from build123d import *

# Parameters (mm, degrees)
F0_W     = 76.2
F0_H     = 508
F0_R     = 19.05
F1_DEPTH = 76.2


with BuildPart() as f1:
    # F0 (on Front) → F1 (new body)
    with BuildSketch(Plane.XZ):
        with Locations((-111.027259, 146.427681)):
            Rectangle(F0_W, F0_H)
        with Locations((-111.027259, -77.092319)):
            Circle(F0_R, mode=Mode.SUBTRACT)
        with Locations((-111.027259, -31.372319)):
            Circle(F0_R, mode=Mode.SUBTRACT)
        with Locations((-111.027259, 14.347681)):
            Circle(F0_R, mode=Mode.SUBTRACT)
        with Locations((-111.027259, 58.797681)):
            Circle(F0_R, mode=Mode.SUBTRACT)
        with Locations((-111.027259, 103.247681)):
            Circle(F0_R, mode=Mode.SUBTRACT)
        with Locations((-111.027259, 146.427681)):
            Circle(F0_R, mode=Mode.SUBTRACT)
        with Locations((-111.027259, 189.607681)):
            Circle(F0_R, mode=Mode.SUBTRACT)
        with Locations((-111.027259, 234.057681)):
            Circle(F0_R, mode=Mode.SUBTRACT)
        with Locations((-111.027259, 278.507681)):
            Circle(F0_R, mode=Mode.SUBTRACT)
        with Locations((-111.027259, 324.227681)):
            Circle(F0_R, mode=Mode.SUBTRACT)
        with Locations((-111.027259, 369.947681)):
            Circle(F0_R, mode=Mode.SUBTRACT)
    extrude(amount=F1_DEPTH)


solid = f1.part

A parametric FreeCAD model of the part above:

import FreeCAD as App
import Part
import Sketcher
from FreeCAD import Vector
Q = App.Units.Quantity

doc = App.newDocument("Part")
body = doc.addObject("PartDesign::Body", "Body")

sketch1 = doc.addObject("Sketcher::SketchObject", "Sketch")
body.addObject(sketch1)
sketch1.AttachmentSupport = (doc.XZ_Plane, [""])
sketch1.MapMode = "FlatFace"
sketch1.addGeometry(Part.LineSegment(Vector(-149, 400, 0), Vector(-149, -108, 0)), False)
sketch1.addGeometry(Part.LineSegment(Vector(-149, -108, 0), Vector(-73, -108, 0)), False)
sketch1.addGeometry(Part.LineSegment(Vector(-73, -108, 0), Vector(-73, 400, 0)), False)
sketch1.addGeometry(Part.LineSegment(Vector(-73, 400, 0), Vector(-149, 400, 0)), False)
sketch1.addGeometry(Part.Circle(Vector(-111, -77, 0), Vector(0, 0, 1), 19), False)
sketch1.addGeometry(Part.Circle(Vector(-111, -31, 0), Vector(0, 0, 1), 19), False)
sketch1.addGeometry(Part.Circle(Vector(-111, 14, 0), Vector(0, 0, 1), 19), False)
sketch1.addGeometry(Part.Circle(Vector(-111, 59, 0), Vector(0, 0, 1), 19), False)
sketch1.addGeometry(Part.Circle(Vector(-111, 103, 0), Vector(0, 0, 1), 19), False)
sketch1.addGeometry(Part.Circle(Vector(-111, 146, 0), Vector(0, 0, 1), 19), False)
sketch1.addGeometry(Part.Circle(Vector(-111, 190, 0), Vector(0, 0, 1), 19), False)
sketch1.addGeometry(Part.Circle(Vector(-111, 234, 0), Vector(0, 0, 1), 19), False)
sketch1.addGeometry(Part.Circle(Vector(-111, 279, 0), Vector(0, 0, 1), 19), False)
sketch1.addGeometry(Part.Circle(Vector(-111, 324, 0), Vector(0, 0, 1), 19), False)
sketch1.addGeometry(Part.Circle(Vector(-111, 370, 0), Vector(0, 0, 1), 19), False)
sketch1.addConstraint(Sketcher.Constraint("Coincident", 0, 2, 1, 1))
sketch1.addConstraint(Sketcher.Constraint("Coincident", 1, 2, 2, 1))
sketch1.addConstraint(Sketcher.Constraint("Coincident", 2, 2, 3, 1))
sketch1.addConstraint(Sketcher.Constraint("Coincident", 3, 2, 0, 1))
sketch1.addConstraint(Sketcher.Constraint("Vertical", 0))
sketch1.addConstraint(Sketcher.Constraint("Horizontal", 1))
sketch1.addConstraint(Sketcher.Constraint("Vertical", 2))
sketch1.addConstraint(Sketcher.Constraint("Horizontal", 3))
sketch1.addConstraint(Sketcher.Constraint("Equal", 4, 5))
sketch1.addConstraint(Sketcher.Constraint("Equal", 5, 6))
sketch1.addConstraint(Sketcher.Constraint("Equal", 6, 7))
sketch1.addConstraint(Sketcher.Constraint("Equal", 7, 8))
sketch1.addConstraint(Sketcher.Constraint("Equal", 8, 9))
sketch1.addConstraint(Sketcher.Constraint("Equal", 9, 10))
sketch1.addConstraint(Sketcher.Constraint("Equal", 10, 11))
sketch1.addConstraint(Sketcher.Constraint("Equal", 11, 12))
sketch1.addConstraint(Sketcher.Constraint("Equal", 12, 13))
sketch1.addConstraint(Sketcher.Constraint("Equal", 13, 14))
sketch1.addConstraint(Sketcher.Constraint("Vertical", 4, 3, 5, 3))
sketch1.addConstraint(Sketcher.Constraint("Vertical", 5, 3, 6, 3))
sketch1.addConstraint(Sketcher.Constraint("Vertical", 6, 3, 7, 3))
sketch1.addConstraint(Sketcher.Constraint("Vertical", 7, 3, 8, 3))
sketch1.addConstraint(Sketcher.Constraint("Vertical", 8, 3, 9, 3))
sketch1.addConstraint(Sketcher.Constraint("Vertical", 9, 3, 10, 3))
sketch1.addConstraint(Sketcher.Constraint("Vertical", 10, 3, 11, 3))
sketch1.addConstraint(Sketcher.Constraint("Vertical", 11, 3, 12, 3))
sketch1.addConstraint(Sketcher.Constraint("Vertical", 12, 3, 13, 3))
sketch1.addConstraint(Sketcher.Constraint("Vertical", 13, 3, 14, 3))
sketch1.addConstraint(Sketcher.Constraint("Diameter", 4, Q("1.5 in")))
sketch1.addConstraint(Sketcher.Constraint("DistanceX", 1, 1, 1, 2, Q("3 in")))
sketch1.addConstraint(Sketcher.Constraint("DistanceY", 0, 2, 0, 1, Q("20 in")))
sketch1.addConstraint(Sketcher.Constraint("DistanceY", 5, 3, 9, 3, Q("7 in")))
sketch1.addConstraint(Sketcher.Constraint("DistanceY", 9, 3, 13, 3, Q("7 in")))
sketch1.addConstraint(Sketcher.Constraint("DistanceY", 0, 2, 5, 3, Q("3 in")))
sketch1.addConstraint(Sketcher.Constraint("DistanceY", 4, 3, 5, 3, Q("1.8 in")))
sketch1.addConstraint(Sketcher.Constraint("DistanceY", 5, 3, 6, 3, Q("1.8 in")))
sketch1.addConstraint(Sketcher.Constraint("DistanceY", 6, 3, 8, 3, Q("3.5 in")))
sketch1.addConstraint(Sketcher.Constraint("DistanceY", 9, 3, 10, 3, Q("1.7 in")))
sketch1.addConstraint(Sketcher.Constraint("DistanceY", 7, 3, 11, 3, Q("6.9 in")))
sketch1.addConstraint(Sketcher.Constraint("DistanceY", 10, 3, 12, 3, Q("3.5 in")))
sketch1.addConstraint(Sketcher.Constraint("DistanceY", 13, 3, 14, 3, Q("1.8 in")))
sketch1.addConstraint(Sketcher.Constraint("DistanceX", 0, 2, 4, 3, Q("1.5 in")))
sketch1.addConstraint(Sketcher.Constraint("DistanceY", 6, 3, 7, 3, Q("1.75 in")))
sketch1.addConstraint(Sketcher.Constraint("DistanceX", 4, 3, -1, 1, 111.027259))
sketch1.addConstraint(Sketcher.Constraint("DistanceY", 4, 3, -1, 1, 77.092319))
pad1 = doc.addObject("PartDesign::Pad", "Pad")
body.addObject(pad1)
pad1.Profile = sketch1
pad1.Length = Q("3 in")

doc.recompute()
